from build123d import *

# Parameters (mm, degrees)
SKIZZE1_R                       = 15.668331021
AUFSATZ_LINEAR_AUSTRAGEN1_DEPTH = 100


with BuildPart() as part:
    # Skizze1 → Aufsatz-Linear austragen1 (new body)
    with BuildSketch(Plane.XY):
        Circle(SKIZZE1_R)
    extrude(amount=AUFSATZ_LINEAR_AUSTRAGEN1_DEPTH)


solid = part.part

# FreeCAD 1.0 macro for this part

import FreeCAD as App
import Part
import Sketcher
from FreeCAD import Vector

doc = App.newDocument("Part")
params = doc.addObject("Spreadsheet::Sheet", "Params")
for row, (alias, value) in enumerate([
    ("pad1_length", "100 mm"),
], start=1):
    params.set(f"A{row}", alias)
    params.set(f"B{row}", "=" + value)
    params.setAlias(f"B{row}", alias)

body = doc.addObject("PartDesign::Body", "Body")

# Sketch on XY plane
sketch1 = body.newObject("Sketcher::SketchObject", "Sketch")
sketch1.AttachmentSupport = (doc.getObject("XY_Plane"), [""])
sketch1.MapMode = "FlatFace"
sketch1.addGeometry(Part.Circle(Vector(0, 0, 0), Vector(0, 0, 1), 16), False)
sketch1.addConstraint(Sketcher.Constraint("Coincident", 0, 3, -1, 1))
sketch1.addConstraint(Sketcher.Constraint("Diameter", 0, 31.336662))
pad1 = body.newObject("PartDesign::Pad", "Pad")
pad1.Profile = sketch1
pad1.setExpression("Length", "Params.pad1_length")

doc.recompute()
